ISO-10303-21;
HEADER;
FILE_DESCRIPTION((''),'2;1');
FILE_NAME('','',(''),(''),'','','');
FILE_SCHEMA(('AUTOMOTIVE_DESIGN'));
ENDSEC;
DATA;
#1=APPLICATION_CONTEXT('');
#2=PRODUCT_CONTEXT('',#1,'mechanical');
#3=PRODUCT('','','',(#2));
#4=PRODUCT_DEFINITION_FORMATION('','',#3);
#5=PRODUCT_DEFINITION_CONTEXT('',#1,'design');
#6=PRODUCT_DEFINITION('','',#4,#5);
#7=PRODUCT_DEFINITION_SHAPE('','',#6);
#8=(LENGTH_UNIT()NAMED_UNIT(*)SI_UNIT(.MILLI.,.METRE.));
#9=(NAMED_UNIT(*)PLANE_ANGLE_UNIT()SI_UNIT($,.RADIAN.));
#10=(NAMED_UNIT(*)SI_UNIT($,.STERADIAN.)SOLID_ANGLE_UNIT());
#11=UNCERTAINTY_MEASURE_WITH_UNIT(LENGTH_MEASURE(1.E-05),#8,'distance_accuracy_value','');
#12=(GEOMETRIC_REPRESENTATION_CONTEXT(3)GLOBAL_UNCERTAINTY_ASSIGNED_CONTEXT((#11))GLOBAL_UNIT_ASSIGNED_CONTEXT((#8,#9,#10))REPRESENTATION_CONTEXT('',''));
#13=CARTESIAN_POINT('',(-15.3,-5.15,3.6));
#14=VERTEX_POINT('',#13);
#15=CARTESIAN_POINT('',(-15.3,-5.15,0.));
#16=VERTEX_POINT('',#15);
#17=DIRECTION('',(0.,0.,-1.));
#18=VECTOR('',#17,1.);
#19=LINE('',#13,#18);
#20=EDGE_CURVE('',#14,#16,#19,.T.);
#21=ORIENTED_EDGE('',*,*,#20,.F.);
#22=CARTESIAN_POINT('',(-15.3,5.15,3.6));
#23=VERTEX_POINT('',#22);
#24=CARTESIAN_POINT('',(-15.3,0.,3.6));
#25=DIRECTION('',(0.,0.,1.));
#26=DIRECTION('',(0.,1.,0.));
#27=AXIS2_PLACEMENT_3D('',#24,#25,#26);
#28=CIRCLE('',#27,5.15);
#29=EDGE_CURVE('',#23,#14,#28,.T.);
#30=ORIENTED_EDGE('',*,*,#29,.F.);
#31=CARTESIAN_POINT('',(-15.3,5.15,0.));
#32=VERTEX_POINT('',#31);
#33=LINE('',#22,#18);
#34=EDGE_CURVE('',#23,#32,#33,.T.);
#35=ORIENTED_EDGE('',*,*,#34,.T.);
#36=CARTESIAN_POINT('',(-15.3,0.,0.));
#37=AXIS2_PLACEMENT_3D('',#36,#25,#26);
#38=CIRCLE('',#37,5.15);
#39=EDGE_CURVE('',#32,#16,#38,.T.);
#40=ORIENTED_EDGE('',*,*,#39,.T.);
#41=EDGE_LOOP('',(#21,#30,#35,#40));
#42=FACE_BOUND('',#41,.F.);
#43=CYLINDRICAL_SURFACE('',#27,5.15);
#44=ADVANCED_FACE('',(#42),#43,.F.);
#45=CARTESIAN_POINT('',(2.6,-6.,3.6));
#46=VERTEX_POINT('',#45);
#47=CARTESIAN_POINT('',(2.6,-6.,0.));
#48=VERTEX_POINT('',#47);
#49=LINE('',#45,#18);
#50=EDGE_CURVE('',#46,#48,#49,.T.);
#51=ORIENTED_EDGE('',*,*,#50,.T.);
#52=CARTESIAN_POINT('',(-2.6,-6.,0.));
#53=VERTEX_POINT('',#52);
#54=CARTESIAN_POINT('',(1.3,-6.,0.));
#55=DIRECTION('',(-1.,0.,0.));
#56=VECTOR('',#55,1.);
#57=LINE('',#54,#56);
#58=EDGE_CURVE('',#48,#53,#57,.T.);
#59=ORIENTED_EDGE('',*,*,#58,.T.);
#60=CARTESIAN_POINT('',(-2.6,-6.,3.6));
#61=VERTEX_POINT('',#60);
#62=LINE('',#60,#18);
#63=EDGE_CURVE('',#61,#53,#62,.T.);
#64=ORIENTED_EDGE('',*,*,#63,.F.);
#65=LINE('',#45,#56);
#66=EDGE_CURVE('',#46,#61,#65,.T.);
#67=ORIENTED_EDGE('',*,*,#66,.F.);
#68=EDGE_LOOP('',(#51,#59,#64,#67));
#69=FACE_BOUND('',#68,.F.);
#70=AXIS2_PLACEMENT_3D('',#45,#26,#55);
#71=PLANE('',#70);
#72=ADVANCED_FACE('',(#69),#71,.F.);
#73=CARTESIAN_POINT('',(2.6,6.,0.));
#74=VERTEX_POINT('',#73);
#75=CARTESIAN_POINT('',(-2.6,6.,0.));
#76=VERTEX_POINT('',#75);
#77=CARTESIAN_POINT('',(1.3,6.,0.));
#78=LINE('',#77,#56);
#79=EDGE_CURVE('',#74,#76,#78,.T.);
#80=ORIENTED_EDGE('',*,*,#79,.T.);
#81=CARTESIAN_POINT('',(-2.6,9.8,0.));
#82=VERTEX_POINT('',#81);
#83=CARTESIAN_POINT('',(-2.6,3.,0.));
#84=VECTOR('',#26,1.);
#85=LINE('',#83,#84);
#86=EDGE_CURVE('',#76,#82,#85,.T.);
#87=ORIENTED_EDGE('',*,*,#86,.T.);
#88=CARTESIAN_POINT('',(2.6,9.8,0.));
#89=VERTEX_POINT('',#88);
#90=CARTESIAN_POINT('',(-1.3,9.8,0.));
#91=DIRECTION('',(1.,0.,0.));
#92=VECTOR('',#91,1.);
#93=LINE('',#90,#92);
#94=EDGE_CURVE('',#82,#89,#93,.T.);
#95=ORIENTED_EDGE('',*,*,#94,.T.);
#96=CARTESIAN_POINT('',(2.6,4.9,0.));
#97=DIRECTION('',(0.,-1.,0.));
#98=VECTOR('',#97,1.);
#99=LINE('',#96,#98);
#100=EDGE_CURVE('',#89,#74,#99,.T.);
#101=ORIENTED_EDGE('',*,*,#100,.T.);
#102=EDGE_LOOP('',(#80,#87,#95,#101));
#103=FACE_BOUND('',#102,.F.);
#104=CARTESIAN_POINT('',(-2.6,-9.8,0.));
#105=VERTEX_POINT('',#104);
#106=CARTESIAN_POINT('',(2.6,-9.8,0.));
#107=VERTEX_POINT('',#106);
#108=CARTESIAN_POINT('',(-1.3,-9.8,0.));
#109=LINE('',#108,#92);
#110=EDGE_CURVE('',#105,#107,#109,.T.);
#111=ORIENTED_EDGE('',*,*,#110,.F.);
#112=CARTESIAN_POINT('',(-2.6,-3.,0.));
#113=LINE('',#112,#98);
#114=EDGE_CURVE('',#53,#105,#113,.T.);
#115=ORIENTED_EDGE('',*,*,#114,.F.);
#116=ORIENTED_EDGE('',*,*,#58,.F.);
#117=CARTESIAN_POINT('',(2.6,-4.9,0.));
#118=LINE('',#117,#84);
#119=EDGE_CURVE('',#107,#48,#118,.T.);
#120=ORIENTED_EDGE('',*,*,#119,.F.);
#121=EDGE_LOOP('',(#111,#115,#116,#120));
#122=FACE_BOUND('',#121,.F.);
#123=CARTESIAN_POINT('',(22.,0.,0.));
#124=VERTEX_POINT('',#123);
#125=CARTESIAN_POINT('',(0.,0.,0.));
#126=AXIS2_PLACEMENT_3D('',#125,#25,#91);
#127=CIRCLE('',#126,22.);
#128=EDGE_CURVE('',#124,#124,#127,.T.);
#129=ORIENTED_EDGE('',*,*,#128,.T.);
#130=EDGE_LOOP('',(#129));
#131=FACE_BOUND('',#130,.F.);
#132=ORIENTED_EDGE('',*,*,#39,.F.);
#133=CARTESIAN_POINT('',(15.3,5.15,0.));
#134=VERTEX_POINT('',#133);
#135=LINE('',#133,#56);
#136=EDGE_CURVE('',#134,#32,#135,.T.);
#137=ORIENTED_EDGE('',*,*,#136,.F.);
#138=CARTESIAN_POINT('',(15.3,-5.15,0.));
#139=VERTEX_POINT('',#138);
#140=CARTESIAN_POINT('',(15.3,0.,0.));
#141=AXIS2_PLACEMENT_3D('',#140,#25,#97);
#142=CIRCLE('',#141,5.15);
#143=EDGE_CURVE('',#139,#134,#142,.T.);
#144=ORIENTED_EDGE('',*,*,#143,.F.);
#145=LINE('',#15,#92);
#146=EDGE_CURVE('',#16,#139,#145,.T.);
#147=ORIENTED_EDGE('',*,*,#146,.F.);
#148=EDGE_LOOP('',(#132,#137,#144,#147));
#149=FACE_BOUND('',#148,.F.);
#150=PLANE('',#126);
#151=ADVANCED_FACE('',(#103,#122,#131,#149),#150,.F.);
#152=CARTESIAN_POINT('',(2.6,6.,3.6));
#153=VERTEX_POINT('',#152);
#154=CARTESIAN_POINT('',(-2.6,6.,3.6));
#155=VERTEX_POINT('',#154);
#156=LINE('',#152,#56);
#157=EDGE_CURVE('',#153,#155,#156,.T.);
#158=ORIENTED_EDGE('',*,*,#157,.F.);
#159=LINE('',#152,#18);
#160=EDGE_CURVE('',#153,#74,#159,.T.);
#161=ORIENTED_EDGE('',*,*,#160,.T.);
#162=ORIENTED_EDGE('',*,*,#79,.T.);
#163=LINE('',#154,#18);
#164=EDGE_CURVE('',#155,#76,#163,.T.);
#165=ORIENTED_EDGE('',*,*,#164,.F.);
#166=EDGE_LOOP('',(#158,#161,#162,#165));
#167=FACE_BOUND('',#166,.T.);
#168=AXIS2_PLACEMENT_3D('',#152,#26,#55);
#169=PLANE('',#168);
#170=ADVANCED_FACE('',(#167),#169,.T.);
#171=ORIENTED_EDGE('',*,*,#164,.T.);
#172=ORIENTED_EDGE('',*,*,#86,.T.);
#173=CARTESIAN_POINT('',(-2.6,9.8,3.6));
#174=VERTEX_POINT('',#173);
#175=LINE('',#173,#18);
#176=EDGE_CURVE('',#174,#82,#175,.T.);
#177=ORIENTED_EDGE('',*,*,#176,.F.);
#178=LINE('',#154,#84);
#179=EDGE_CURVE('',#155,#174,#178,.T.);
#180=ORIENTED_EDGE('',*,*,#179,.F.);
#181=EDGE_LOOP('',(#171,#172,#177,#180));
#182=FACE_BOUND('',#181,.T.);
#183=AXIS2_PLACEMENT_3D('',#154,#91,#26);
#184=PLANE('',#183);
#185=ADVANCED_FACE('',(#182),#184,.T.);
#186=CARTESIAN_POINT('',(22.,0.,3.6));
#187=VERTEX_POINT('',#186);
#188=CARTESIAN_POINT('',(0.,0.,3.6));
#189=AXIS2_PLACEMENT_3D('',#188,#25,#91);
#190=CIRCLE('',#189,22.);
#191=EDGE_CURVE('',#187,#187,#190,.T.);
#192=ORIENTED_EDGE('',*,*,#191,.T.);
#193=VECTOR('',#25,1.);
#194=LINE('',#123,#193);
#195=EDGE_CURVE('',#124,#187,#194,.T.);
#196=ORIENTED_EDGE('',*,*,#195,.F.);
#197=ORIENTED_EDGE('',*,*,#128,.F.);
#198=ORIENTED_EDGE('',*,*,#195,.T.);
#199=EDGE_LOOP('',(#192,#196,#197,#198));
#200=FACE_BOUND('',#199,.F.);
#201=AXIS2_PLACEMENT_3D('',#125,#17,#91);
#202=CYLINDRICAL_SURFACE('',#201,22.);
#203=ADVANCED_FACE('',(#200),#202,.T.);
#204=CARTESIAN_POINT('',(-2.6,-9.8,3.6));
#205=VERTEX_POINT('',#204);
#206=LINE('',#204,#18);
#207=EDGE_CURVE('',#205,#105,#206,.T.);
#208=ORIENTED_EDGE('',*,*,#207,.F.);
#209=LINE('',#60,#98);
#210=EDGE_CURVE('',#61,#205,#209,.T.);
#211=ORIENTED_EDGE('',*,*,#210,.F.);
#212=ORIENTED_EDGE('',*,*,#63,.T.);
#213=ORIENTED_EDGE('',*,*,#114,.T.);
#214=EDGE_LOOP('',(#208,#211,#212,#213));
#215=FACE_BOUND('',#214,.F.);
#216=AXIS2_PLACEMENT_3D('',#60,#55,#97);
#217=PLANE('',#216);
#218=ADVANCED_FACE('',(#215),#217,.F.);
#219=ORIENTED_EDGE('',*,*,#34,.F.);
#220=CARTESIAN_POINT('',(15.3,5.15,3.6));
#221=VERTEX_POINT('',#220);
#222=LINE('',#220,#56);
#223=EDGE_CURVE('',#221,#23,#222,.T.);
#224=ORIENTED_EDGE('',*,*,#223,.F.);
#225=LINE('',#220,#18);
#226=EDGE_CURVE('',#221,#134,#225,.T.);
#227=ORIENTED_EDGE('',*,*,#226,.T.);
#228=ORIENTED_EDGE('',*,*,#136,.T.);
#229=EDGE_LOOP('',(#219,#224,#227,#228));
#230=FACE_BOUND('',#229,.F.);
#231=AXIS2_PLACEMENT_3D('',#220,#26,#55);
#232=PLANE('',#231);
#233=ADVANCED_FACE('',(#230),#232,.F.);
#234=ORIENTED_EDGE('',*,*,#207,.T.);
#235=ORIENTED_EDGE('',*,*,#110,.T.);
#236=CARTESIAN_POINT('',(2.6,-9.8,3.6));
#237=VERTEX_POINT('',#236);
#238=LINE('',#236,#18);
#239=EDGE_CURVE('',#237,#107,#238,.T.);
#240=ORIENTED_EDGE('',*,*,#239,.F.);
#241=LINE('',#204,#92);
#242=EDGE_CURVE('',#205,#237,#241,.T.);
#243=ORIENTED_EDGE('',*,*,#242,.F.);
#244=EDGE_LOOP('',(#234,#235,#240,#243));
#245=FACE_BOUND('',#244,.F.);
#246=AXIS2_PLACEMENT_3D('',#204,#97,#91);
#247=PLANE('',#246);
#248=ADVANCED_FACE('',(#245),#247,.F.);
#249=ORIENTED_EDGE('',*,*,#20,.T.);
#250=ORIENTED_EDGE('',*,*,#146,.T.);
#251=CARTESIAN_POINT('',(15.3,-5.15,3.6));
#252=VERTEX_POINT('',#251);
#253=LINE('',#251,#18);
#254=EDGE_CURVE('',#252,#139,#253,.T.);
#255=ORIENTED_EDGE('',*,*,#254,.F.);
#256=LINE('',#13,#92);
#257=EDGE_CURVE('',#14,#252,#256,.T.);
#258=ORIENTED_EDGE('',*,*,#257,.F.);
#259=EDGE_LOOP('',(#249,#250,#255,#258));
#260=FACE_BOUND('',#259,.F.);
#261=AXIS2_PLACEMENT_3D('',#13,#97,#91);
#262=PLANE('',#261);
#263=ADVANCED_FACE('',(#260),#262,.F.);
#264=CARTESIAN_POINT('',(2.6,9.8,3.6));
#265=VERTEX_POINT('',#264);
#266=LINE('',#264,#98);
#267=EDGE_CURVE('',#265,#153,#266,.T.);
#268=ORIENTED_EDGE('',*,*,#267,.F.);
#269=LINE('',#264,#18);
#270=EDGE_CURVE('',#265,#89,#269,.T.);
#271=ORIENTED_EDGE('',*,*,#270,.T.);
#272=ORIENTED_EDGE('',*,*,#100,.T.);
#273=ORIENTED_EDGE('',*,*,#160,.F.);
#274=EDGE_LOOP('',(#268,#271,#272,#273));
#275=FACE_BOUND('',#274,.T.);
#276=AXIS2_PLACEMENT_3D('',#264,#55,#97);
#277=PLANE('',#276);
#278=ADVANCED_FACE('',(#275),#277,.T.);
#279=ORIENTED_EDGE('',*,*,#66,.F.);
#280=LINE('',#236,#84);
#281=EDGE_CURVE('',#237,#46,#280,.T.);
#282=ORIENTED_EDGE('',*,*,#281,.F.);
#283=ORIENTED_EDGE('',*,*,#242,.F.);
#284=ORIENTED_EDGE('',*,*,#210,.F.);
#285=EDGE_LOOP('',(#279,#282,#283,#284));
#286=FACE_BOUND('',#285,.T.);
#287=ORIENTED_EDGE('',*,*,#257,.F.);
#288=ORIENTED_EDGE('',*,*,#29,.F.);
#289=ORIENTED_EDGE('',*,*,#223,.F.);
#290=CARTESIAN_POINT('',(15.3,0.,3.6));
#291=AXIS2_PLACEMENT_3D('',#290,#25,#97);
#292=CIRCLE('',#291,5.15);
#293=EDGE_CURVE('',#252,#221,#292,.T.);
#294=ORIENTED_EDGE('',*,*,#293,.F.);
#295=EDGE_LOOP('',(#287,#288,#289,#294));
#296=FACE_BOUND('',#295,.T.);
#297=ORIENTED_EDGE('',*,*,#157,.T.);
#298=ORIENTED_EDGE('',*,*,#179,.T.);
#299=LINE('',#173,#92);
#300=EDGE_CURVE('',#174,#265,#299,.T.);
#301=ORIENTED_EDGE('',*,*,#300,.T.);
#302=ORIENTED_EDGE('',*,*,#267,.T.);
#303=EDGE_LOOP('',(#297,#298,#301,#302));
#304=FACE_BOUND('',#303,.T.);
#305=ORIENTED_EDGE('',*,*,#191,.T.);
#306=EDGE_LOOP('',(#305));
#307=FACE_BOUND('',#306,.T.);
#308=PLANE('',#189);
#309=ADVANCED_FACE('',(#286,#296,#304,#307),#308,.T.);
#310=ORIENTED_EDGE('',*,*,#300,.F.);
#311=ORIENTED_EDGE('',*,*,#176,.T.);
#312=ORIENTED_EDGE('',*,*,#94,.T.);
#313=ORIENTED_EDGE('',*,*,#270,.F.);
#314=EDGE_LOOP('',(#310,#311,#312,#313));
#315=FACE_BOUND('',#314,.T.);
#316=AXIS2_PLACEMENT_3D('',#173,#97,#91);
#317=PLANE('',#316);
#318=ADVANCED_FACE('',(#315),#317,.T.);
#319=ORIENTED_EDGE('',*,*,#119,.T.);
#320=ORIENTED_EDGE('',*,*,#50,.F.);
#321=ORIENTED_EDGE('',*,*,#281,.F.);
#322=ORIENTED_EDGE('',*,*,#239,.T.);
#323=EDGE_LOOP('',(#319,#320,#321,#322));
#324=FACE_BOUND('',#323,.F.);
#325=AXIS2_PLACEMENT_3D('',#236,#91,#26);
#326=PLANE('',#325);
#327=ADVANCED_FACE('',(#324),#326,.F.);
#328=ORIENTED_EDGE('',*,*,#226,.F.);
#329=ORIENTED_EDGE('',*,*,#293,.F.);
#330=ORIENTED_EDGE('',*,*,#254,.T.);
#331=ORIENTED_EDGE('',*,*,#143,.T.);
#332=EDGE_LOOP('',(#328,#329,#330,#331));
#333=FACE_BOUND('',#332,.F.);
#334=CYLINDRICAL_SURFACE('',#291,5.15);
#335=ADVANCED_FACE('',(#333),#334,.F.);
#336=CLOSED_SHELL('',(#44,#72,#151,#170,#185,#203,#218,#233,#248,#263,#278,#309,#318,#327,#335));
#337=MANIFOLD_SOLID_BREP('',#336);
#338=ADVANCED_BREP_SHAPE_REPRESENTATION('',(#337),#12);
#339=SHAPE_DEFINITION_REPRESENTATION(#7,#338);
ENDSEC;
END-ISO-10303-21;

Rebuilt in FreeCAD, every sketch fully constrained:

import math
import FreeCAD as App
import Part
import Sketcher
Q = App.Units.Quantity

doc = App.newDocument("Part")
body = doc.addObject("PartDesign::Body", "Body")

# Sketch on XY plane
sketch1 = body.newObject("Sketcher::SketchObject", "Sketch")
sketch1.AttachmentSupport = (doc.getObject("XY_Plane"), [""])
sketch1.MapMode = "FlatFace"
sketch1.addGeometry(Part.Circle(App.Vector(0, 0, 0), App.Vector(0, 0, 1), 22), False)
sketch1.addConstraint(Sketcher.Constraint("Coincident", 0, 3, -1, 1))
sketch1.addConstraint(Sketcher.Constraint("Diameter", 0, Q("44 mm")))
pad1 = body.newObject("PartDesign::Pad", "Pad")
pad1.Profile = sketch1
pad1.Length = 3.6

# Sketch on XY plane
sketch2 = body.newObject("Sketcher::SketchObject", "Sketch001")
sketch2.AttachmentSupport = (doc.getObject("XY_Plane"), [""])
sketch2.MapMode = "FlatFace"
sketch2.AttachmentOffset = App.Placement(App.Vector(0, 0, 3.6), App.Rotation())
sketch2.addGeometry(Part.ArcOfCircle(Part.Circle(App.Vector(15, 0, 0), App.Vector(0, 0, 1), 5), math.radians(-90), math.radians(90)), False)
sketch2.addGeometry(Part.LineSegment(App.Vector(15, 5, 0), App.Vector(-15, 5, 0)), False)
sketch2.addGeometry(Part.ArcOfCircle(Part.Circle(App.Vector(-15, 0, 0), App.Vector(0, 0, 1), 5), math.radians(90), math.radians(270)), False)
sketch2.addGeometry(Part.LineSegment(App.Vector(-15, -5, 0), App.Vector(15, -5, 0)), False)
sketch2.addConstraint(Sketcher.Constraint("Tangent", 0, 2, 1, 1))
sketch2.addConstraint(Sketcher.Constraint("Tangent", 1, 2, 2, 1))
sketch2.addConstraint(Sketcher.Constraint("Tangent", 2, 2, 3, 1))
sketch2.addConstraint(Sketcher.Constraint("Tangent", 3, 2, 0, 1))
sketch2.addConstraint(Sketcher.Constraint("Horizontal", 1))
sketch2.addConstraint(Sketcher.Constraint("Horizontal", 3))
sketch2.addConstraint(Sketcher.Constraint("Symmetric", 0, 3, 2, 3, -1, 1))
sketch2.addConstraint(Sketcher.Constraint("Radius", 0, Q("5.15 mm")))
sketch2.addConstraint(Sketcher.Constraint("DistanceX", -1, 1, 0, 3, Q("15.3 mm")))
pocket1 = body.newObject("PartDesign::Pocket", "Pocket")
pocket1.Profile = sketch2
pocket1.Length = 3.6

# Sketch on XY plane
sketch3 = body.newObject("Sketcher::SketchObject", "Sketch002")
sketch3.AttachmentSupport = (doc.getObject("XY_Plane"), [""])
sketch3.MapMode = "FlatFace"
sketch3.AttachmentOffset = App.Placement(App.Vector(0, 0, 3.6), App.Rotation())
sketch3.addGeometry(Part.LineSegment(App.Vector(2.6, 9.8, 0), App.Vector(-2.6, 9.8, 0)), False)
sketch3.addGeometry(Part.LineSegment(App.Vector(-2.6, 9.8, 0), App.Vector(-2.6, 6, 0)), False)
sketch3.addGeometry(Part.LineSegment(App.Vector(-2.6, 6, 0), App.Vector(2.6, 6, 0)), False)
sketch3.addGeometry(Part.LineSegment(App.Vector(2.6, 6, 0), App.Vector(2.6, 9.8, 0)), False)
sketch3.addGeometry(Part.LineSegment(App.Vector(-2.6, -6, 0), App.Vector(-2.6, -9.8, 0)), False)
sketch3.addGeometry(Part.LineSegment(App.Vector(-2.6, -9.8, 0), App.Vector(2.6, -9.8, 0)), False)
sketch3.addGeometry(Part.LineSegment(App.Vector(2.6, -9.8, 0), App.Vector(2.6, -6, 0)), False)
sketch3.addGeometry(Part.LineSegment(App.Vector(2.6, -6, 0), App.Vector(-2.6, -6, 0)), False)
sketch3.addConstraint(Sketcher.Constraint("Coincident", 0, 2, 1, 1))
sketch3.addConstraint(Sketcher.Constraint("Coincident", 1, 2, 2, 1))
sketch3.addConstraint(Sketcher.Constraint("Coincident", 2, 2, 3, 1))
sketch3.addConstraint(Sketcher.Constraint("Coincident", 3, 2, 0, 1))
sketch3.addConstraint(Sketcher.Constraint("Coincident", 4, 2, 5, 1))
sketch3.addConstraint(Sketcher.Constraint("Coincident", 5, 2, 6, 1))
sketch3.addConstraint(Sketcher.Constraint("Coincident", 6, 2, 7, 1))
sketch3.addConstraint(Sketcher.Constraint("Coincident", 7, 2, 4, 1))
sketch3.addConstraint(Sketcher.Constraint("Horizontal", 0))
sketch3.addConstraint(Sketcher.Constraint("Vertical", 1))
sketch3.addConstraint(Sketcher.Constraint("Horizontal", 2))
sketch3.addConstraint(Sketcher.Constraint("Vertical", 3))
sketch3.addConstraint(Sketcher.Constraint("Vertical", 4))
sketch3.addConstraint(Sketcher.Constraint("Horizontal", 5))
sketch3.addConstraint(Sketcher.Constraint("Vertical", 6))
sketch3.addConstraint(Sketcher.Constraint("Horizontal", 7))
sketch3.addConstraint(Sketcher.Constraint("Symmetric", 3, 2, 4, 2, -1, 1))
sketch3.addConstraint(Sketcher.Constraint("Symmetric", 1, 2, 6, 2, -1, 1))
sketch3.addConstraint(Sketcher.Constraint("Vertical", 1, 2, 4, 2))
sketch3.addConstraint(Sketcher.Constraint("DistanceX", 0, 2, 0, 1, Q("5.2 mm")))
sketch3.addConstraint(Sketcher.Constraint("DistanceY", 1, 2, 1, 1, Q("3.8 mm")))
sketch3.addConstraint(Sketcher.Constraint("DistanceY", -1, 1, 1, 2, Q("6 mm")))
pocket2 = body.newObject("PartDesign::Pocket", "Pocket001")
pocket2.Profile = sketch3
pocket2.Length = 10

doc.recompute()
